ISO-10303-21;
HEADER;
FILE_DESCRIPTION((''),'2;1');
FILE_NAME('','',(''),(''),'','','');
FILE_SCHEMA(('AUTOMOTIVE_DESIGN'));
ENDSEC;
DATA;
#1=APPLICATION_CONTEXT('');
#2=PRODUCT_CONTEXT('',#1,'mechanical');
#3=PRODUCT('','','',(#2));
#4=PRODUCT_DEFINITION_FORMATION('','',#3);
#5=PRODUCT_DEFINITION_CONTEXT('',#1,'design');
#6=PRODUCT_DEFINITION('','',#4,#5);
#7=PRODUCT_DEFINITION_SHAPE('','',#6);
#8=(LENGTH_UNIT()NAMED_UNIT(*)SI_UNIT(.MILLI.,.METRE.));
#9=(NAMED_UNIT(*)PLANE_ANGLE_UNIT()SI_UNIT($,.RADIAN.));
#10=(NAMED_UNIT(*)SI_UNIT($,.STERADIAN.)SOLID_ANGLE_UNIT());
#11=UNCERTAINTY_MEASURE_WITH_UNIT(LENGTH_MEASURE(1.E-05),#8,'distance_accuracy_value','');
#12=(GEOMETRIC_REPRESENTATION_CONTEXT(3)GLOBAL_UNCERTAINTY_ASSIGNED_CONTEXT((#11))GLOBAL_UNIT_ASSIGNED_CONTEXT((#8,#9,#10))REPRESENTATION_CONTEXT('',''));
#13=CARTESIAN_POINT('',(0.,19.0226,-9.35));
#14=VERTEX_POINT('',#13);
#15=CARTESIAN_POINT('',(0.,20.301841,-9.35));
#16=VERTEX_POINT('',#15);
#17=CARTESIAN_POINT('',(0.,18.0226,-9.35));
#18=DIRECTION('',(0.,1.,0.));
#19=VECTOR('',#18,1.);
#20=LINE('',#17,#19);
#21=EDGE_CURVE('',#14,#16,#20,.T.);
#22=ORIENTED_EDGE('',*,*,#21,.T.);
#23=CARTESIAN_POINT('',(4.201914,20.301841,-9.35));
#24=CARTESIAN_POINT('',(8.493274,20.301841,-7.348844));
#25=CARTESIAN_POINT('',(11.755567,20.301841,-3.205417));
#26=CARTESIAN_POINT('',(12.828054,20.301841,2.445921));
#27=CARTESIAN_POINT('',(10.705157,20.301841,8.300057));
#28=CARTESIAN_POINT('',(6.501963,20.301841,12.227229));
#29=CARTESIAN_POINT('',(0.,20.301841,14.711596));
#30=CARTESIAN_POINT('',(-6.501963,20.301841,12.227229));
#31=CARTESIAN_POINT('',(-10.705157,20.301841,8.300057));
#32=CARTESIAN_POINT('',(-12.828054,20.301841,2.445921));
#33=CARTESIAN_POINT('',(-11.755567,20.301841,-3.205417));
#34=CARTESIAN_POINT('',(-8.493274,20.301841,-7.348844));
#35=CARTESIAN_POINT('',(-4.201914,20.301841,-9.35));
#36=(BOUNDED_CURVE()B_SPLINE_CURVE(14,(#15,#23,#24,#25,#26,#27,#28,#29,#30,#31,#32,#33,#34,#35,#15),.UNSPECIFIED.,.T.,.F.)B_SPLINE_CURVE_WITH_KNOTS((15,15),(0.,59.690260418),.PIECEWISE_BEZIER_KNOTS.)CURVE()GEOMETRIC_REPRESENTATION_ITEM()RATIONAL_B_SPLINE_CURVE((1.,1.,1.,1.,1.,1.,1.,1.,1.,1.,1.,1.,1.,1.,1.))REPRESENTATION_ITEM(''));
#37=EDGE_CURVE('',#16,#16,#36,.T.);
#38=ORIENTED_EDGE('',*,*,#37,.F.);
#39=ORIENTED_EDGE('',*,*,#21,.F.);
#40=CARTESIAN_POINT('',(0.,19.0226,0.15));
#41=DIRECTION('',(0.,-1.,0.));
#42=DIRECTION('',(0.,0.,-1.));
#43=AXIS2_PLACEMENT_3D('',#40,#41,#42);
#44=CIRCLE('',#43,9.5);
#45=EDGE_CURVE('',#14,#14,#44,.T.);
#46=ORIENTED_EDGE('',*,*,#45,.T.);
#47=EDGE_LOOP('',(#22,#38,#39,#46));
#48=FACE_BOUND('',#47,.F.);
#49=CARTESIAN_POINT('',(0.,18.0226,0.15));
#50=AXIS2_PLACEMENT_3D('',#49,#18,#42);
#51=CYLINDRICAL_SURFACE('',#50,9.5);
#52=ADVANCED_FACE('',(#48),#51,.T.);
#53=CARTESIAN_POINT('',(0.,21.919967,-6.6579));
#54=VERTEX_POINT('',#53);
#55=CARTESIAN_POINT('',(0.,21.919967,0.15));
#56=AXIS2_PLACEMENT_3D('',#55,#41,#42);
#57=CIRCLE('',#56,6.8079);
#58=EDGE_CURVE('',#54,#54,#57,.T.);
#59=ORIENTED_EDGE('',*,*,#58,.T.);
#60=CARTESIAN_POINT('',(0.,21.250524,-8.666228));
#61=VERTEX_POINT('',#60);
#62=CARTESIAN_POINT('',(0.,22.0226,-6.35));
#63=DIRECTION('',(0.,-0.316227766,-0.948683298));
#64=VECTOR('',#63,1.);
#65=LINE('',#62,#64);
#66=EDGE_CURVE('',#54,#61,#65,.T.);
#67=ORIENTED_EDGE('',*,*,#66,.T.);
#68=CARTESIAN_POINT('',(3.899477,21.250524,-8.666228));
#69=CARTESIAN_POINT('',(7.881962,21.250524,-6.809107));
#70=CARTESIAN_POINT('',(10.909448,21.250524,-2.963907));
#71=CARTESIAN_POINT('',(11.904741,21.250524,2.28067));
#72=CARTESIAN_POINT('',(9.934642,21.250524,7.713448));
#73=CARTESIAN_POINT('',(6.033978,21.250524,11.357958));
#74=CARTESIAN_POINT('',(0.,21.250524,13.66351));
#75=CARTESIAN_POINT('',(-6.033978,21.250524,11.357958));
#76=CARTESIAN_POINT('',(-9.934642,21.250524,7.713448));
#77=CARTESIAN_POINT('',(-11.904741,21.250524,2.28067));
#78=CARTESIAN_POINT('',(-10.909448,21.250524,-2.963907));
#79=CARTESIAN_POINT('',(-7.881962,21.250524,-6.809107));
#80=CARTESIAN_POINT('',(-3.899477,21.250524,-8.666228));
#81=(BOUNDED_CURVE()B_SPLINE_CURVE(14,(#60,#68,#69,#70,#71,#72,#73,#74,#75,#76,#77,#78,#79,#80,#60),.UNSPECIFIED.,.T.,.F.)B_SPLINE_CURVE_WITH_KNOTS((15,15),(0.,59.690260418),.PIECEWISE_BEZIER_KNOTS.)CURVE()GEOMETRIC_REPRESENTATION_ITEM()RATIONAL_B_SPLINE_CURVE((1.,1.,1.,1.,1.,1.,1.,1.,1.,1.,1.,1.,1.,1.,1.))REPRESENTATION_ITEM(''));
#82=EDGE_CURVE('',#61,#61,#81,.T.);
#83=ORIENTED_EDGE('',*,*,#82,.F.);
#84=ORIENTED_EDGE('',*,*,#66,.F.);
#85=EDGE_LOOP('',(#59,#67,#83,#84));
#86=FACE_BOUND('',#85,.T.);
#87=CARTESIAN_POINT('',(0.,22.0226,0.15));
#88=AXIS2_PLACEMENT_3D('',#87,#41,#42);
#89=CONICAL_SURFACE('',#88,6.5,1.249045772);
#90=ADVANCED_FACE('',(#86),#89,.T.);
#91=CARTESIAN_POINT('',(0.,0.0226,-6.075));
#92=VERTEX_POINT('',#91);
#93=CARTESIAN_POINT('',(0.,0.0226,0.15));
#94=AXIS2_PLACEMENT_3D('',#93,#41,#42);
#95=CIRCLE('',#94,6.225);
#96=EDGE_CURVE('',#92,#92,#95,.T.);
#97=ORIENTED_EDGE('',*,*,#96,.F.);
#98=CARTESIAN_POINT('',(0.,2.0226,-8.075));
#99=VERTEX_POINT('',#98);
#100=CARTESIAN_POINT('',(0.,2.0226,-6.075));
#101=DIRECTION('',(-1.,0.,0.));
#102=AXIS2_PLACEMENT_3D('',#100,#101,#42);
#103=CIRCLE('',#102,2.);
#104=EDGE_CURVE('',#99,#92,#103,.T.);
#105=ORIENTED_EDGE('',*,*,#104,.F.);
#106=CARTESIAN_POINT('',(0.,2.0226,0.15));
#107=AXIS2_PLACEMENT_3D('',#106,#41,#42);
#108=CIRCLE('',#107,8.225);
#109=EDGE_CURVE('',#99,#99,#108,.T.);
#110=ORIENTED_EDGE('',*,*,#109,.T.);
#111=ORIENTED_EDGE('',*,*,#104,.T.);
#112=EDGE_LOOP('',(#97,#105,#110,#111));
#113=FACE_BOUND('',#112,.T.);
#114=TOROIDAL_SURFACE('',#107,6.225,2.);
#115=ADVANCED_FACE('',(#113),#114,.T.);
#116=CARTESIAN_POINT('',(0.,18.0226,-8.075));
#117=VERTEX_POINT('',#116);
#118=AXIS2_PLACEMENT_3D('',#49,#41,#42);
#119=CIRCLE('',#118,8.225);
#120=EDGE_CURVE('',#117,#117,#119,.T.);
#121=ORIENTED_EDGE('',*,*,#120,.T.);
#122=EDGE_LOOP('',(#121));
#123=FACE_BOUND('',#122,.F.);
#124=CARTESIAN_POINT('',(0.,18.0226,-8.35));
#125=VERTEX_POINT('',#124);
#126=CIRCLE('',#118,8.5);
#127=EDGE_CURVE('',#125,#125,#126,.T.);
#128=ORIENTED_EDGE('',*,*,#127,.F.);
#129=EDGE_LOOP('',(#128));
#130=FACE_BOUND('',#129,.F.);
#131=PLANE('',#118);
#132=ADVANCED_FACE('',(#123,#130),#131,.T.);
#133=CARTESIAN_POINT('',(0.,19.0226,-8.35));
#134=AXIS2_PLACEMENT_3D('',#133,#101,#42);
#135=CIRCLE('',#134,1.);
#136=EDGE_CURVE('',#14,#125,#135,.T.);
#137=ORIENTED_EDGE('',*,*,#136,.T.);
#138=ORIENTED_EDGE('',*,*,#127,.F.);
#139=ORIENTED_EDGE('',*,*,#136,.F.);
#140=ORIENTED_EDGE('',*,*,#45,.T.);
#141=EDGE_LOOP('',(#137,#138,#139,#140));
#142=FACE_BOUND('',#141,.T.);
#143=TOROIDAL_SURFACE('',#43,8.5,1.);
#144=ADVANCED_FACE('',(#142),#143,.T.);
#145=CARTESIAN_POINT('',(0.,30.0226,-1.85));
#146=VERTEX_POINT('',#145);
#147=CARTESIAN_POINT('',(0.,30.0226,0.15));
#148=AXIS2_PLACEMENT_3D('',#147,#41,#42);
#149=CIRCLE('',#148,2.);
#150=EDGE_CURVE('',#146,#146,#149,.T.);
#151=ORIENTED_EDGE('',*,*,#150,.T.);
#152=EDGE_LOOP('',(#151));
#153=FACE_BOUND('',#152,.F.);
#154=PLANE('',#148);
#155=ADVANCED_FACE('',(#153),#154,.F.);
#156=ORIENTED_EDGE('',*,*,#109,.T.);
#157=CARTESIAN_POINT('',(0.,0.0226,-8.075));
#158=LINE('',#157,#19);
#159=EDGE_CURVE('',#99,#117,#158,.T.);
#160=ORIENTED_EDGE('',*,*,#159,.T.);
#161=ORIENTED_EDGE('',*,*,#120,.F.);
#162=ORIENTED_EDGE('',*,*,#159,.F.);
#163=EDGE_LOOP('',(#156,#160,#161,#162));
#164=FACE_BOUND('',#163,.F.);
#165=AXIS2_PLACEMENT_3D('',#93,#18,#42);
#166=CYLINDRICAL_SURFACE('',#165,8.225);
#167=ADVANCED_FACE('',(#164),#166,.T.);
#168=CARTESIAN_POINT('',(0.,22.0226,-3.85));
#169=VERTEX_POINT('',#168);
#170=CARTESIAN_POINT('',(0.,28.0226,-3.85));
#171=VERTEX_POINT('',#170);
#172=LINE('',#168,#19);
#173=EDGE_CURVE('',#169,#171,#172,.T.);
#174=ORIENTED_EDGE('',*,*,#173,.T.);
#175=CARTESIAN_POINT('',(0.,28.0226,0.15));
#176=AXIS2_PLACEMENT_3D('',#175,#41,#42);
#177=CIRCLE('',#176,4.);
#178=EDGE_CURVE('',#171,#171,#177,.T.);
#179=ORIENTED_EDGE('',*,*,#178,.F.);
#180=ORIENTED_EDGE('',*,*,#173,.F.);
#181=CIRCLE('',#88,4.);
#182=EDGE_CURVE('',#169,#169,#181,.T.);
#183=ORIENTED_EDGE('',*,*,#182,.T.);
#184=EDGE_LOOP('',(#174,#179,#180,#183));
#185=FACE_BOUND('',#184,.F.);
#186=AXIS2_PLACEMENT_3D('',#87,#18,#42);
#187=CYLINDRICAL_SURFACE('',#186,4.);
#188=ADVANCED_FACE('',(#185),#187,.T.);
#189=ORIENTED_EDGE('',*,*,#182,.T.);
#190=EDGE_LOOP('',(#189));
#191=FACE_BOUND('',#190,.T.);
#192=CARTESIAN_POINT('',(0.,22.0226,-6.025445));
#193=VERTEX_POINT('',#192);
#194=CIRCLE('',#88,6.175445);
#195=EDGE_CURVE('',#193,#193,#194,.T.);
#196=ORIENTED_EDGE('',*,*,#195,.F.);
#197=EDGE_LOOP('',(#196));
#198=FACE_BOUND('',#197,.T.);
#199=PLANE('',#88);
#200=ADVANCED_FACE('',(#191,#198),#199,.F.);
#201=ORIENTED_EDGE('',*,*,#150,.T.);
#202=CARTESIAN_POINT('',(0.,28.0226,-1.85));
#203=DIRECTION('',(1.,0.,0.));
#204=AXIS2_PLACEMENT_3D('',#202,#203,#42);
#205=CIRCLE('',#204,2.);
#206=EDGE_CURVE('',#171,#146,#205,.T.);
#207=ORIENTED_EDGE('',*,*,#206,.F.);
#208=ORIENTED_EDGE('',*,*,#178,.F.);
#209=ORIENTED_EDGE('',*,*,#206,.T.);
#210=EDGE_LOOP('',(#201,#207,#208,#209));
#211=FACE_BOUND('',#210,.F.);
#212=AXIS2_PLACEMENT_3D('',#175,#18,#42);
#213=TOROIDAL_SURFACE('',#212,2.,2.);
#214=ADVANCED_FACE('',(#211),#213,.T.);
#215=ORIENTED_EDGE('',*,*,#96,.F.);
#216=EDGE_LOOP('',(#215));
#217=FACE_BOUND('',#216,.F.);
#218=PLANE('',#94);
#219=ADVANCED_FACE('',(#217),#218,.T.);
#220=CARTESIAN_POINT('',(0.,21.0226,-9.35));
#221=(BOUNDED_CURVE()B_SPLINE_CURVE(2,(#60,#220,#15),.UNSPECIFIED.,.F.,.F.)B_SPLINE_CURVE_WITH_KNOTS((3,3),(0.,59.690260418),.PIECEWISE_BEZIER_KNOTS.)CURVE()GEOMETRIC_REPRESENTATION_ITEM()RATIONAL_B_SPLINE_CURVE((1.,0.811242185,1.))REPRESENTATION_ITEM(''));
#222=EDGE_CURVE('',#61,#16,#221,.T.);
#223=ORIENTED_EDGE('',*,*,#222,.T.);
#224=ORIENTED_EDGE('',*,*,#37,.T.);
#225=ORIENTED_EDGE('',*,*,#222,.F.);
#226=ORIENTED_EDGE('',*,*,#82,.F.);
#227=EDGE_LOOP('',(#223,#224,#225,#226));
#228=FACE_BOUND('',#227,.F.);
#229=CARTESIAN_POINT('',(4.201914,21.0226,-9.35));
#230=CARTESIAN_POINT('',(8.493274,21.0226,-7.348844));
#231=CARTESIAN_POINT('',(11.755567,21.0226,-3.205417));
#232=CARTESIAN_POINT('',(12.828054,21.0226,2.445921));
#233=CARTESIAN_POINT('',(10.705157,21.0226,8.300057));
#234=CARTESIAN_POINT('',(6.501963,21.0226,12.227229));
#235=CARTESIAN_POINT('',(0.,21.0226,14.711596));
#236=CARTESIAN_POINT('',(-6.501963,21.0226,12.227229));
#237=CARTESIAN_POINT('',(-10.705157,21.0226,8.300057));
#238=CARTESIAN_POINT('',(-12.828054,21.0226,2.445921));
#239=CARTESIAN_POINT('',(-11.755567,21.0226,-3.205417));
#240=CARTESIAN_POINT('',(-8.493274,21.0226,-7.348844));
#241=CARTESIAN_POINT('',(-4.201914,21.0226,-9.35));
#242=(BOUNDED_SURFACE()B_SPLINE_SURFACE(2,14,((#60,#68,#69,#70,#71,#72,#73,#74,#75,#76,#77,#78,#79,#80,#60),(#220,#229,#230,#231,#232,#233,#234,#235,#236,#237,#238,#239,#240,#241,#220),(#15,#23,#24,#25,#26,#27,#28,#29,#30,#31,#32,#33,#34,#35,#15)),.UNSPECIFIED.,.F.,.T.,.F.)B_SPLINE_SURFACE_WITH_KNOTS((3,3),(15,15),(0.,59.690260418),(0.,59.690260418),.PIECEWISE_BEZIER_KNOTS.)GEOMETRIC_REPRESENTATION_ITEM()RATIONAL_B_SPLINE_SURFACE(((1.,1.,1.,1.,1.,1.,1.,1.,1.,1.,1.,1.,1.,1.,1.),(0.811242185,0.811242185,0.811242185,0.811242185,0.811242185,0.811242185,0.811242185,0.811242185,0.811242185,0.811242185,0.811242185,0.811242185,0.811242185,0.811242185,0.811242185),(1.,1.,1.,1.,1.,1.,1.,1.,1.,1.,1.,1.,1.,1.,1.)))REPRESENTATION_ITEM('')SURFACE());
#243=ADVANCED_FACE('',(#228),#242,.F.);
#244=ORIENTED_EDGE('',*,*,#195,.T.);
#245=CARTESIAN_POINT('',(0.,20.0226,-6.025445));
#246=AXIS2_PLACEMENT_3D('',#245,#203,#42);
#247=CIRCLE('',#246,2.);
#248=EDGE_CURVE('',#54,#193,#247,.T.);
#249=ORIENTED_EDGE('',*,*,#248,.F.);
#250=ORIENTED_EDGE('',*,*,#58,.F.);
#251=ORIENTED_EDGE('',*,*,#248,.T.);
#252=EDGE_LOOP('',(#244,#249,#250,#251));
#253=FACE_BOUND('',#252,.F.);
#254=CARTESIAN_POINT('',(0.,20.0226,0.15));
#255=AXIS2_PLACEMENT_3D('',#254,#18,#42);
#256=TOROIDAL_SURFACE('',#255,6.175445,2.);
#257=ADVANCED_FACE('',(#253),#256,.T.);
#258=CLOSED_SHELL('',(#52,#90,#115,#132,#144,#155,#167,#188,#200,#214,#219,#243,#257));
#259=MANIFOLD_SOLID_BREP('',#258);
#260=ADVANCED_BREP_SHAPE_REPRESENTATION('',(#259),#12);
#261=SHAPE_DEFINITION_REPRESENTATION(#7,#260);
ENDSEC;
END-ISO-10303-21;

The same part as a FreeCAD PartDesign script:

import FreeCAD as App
import Part
import Sketcher
from FreeCAD import Vector
Q = App.Units.Quantity


def edges_at(feature, points):
    """Names of the edges that pass closest to the given points."""
    edges = feature.Shape.Edges
    near = lambda p: min(range(len(edges)), key=lambda i: edges[i].distToShape(Part.Vertex(*p))[0])
    return sorted({f"Edge{near(p) + 1}" for p in points})

doc = App.newDocument("Part")
params = doc.addObject("Spreadsheet::Sheet", "Params")
for row, (alias, value) in enumerate([
    ("sketch1_width", "30 mm"),
    ("sketch1_width2", "3 mm"),
    ("sketch1_width3", "8 mm"),
    ("sketch1_height", "4 mm"),
    ("sketch1_height2", "2.5 mm"),
    ("revolution_angle", "360 deg"),
    ("fillet_radius", "1 mm"),
    ("fillet2_radius", "2 mm"),
    ("fillet3_radius", "2 mm"),
    ("fillet4_radius", "2 mm"),
], start=1):
    params.set(f"A{row}", alias)
    params.set(f"B{row}", "=" + value)
    params.setAlias(f"B{row}", alias)

body = doc.addObject("PartDesign::Body", "Body")

# Sketch on YZ plane
sketch1 = body.newObject("Sketcher::SketchObject", "Sketch")
sketch1.AttachmentSupport = (doc.getObject("YZ_Plane"), [""])
sketch1.MapMode = "FlatFace"
sketch1.addGeometry(Part.LineSegment(Vector(30, -3.9, 0), Vector(30, 0.1, 0)), False)
sketch1.addGeometry(Part.LineSegment(Vector(30, 0.1, 0), Vector(0, 0.1, 0)), False)
sketch1.addGeometry(Part.LineSegment(Vector(0, 0.1, 0), Vector(0, -8.1, 0)), False)
sketch1.addGeometry(Part.LineSegment(Vector(0, -8.1, 0), Vector(18, -8.1, 0)), False)
sketch1.addGeometry(Part.LineSegment(Vector(18, -8.1, 0), Vector(18, -9.3, 0)), False)
sketch1.addGeometry(Part.LineSegment(Vector(18, -9.3, 0), Vector(21, -9.3, 0)), False)
sketch1.addGeometry(Part.LineSegment(Vector(21, -9.3, 0), Vector(22, -6.3, 0)), False)
sketch1.addGeometry(Part.LineSegment(Vector(22, -6.3, 0), Vector(22, -3.9, 0)), False)
sketch1.addGeometry(Part.LineSegment(Vector(22, -3.9, 0), Vector(30, -3.9, 0)), False)
sketch1.addGeometry(Part.LineSegment(Vector(30, 0.1, 0), Vector(0, 0.1, 0)), True)  # axis
sketch1.addConstraint(Sketcher.Constraint("Coincident", 0, 2, 1, 1))
sketch1.addConstraint(Sketcher.Constraint("Coincident", 1, 2, 2, 1))
sketch1.addConstraint(Sketcher.Constraint("Coincident", 2, 2, 3, 1))
sketch1.addConstraint(Sketcher.Constraint("Coincident", 3, 2, 4, 1))
sketch1.addConstraint(Sketcher.Constraint("Coincident", 4, 2, 5, 1))
sketch1.addConstraint(Sketcher.Constraint("Coincident", 5, 2, 6, 1))
sketch1.addConstraint(Sketcher.Constraint("Coincident", 6, 2, 7, 1))
sketch1.addConstraint(Sketcher.Constraint("Coincident", 7, 2, 8, 1))
sketch1.addConstraint(Sketcher.Constraint("Coincident", 8, 2, 0, 1))
sketch1.addConstraint(Sketcher.Constraint("Vertical", 0))
sketch1.addConstraint(Sketcher.Constraint("Horizontal", 1))
sketch1.addConstraint(Sketcher.Constraint("Vertical", 2))
sketch1.addConstraint(Sketcher.Constraint("Horizontal", 3))
sketch1.addConstraint(Sketcher.Constraint("Vertical", 4))
sketch1.addConstraint(Sketcher.Constraint("Horizontal", 5))
sketch1.addConstraint(Sketcher.Constraint("Vertical", 7))
sketch1.addConstraint(Sketcher.Constraint("Horizontal", 8))
sketch1.addConstraint(Sketcher.Constraint("Horizontal", 9))
sketch1.addConstraint(Sketcher.Constraint("Coincident", 9, 1, 0, 2))
sketch1.addConstraint(Sketcher.Constraint("Vertical", 2, 2, 9, 2))
sketch1.addConstraint(Sketcher.Constraint("DistanceX", 1, 2, 1, 1, Q("30 mm")))
sketch1.addConstraint(Sketcher.Constraint("DistanceX", 5, 1, 5, 2, Q("3 mm")))
sketch1.addConstraint(Sketcher.Constraint("DistanceX", 8, 1, 8, 2, Q("8 mm")))
sketch1.addConstraint(Sketcher.Constraint("DistanceY", 0, 1, 0, 2, Q("4 mm")))
sketch1.addConstraint(Sketcher.Constraint("DistanceY", 7, 1, 7, 2, Q("2.5 mm")))
sketch1.addConstraint(Sketcher.Constraint("DistanceX", 5, 2, 6, 2, Q("1 mm")))
sketch1.addConstraint(Sketcher.Constraint("DistanceY", 5, 2, 6, 2, Q("3 mm")))
sketch1.addConstraint(Sketcher.Constraint("DistanceY", 2, 2, 2, 1, Q("8.225 mm")))
sketch1.addConstraint(Sketcher.Constraint("DistanceY", -1, 1, 0, 2, Q("0.15 mm")))
sketch1.addConstraint(Sketcher.Constraint("DistanceX", -1, 1, 0, 2, Q("30.0226 mm")))
sketch1.setExpression("Constraints[20]", "Params.sketch1_width")
sketch1.setExpression("Constraints[21]", "Params.sketch1_width2")
sketch1.setExpression("Constraints[22]", "Params.sketch1_width3")
sketch1.setExpression("Constraints[23]", "Params.sketch1_height")
sketch1.setExpression("Constraints[24]", "Params.sketch1_height2")
revolution = body.newObject("PartDesign::Revolution", "Revolution")
revolution.Profile = sketch1
revolution.ReferenceAxis = (sketch1, ["Axis0"])
revolution.setExpression("Angle", "Params.revolution_angle")
doc.recompute()

fillet = body.newObject("PartDesign::Fillet", "Fillet")
fillet.Base = (revolution, edges_at(revolution, [(0, 21.023, 9.65), (0, 18.023, 9.65)]))
fillet.setExpression("Radius", "Params.fillet_radius")
doc.recompute()

fillet2 = body.newObject("PartDesign::Fillet", "Fillet001")
fillet2.Base = (fillet, edges_at(fillet, [(0, 30.023, 4.15)]))
fillet2.setExpression("Radius", "Params.fillet2_radius")
doc.recompute()

fillet3 = body.newObject("PartDesign::Fillet", "Fillet002")
fillet3.Base = (fillet2, edges_at(fillet2, [(0, 0.023, 8.375)]))
fillet3.setExpression("Radius", "Params.fillet3_radius")
doc.recompute()

fillet4 = body.newObject("PartDesign::Fillet", "Fillet003")
fillet4.Base = (fillet3, edges_at(fillet3, [(0, 22.023, 6.65)]))
fillet4.setExpression("Radius", "Params.fillet4_radius")

doc.recompute()
